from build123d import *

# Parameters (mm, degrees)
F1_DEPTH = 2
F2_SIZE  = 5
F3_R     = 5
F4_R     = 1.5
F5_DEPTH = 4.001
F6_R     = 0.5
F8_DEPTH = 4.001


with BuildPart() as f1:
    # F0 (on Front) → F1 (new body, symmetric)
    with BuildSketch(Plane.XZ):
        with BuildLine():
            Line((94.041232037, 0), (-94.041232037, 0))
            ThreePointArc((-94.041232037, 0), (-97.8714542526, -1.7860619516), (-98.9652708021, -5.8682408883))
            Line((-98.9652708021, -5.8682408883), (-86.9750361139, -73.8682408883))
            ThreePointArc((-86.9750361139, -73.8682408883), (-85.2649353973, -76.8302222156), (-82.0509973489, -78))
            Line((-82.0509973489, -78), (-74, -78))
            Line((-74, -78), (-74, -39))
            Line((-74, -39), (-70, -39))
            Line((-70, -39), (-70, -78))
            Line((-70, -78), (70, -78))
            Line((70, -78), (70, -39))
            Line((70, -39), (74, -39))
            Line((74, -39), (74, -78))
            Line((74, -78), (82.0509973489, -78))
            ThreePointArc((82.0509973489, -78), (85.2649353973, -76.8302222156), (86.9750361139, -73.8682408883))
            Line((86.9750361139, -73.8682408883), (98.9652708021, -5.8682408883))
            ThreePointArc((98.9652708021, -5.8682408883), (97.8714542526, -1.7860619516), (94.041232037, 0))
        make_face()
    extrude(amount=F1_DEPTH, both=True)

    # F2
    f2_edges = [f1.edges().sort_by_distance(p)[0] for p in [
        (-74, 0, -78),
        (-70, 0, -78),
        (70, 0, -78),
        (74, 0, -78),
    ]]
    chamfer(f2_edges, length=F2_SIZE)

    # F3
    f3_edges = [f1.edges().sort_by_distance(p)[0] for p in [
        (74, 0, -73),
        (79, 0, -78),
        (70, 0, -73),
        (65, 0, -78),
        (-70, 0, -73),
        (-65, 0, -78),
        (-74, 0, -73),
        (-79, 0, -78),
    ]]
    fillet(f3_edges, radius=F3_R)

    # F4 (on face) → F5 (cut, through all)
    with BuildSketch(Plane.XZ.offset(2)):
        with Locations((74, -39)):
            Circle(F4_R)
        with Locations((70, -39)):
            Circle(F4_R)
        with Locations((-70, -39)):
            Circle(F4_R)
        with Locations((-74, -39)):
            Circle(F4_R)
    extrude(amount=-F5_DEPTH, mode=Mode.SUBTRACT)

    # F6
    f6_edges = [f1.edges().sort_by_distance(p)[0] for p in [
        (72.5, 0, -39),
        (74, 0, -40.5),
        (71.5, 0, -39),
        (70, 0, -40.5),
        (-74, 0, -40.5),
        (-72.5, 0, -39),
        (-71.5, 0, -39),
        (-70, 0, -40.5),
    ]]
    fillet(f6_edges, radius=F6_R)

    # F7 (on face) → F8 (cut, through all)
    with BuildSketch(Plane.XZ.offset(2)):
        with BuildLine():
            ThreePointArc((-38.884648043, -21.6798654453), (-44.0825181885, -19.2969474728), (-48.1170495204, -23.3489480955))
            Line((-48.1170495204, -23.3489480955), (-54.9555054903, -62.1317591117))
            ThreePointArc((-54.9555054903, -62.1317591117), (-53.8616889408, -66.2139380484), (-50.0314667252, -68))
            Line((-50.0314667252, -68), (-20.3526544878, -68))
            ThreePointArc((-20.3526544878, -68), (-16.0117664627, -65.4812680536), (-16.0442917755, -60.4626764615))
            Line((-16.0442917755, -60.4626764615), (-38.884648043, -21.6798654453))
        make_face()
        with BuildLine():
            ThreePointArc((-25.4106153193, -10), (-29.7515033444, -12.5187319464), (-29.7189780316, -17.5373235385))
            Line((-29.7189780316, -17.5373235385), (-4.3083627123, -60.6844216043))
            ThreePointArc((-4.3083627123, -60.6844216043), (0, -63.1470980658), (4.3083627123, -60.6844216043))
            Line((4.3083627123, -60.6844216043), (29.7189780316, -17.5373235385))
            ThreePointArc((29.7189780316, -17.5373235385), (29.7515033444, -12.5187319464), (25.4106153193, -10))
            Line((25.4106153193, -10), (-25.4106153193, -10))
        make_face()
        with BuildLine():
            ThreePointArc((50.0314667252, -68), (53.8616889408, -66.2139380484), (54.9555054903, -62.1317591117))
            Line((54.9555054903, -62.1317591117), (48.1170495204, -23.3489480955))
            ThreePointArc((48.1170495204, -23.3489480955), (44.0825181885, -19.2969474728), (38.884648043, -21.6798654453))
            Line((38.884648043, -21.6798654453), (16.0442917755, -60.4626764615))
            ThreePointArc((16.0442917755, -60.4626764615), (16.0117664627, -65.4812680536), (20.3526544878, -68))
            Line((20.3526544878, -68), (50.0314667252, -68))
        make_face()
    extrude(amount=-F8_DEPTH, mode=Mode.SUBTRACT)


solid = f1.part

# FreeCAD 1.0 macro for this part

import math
import FreeCAD as App
import Part
import Sketcher
Q = App.Units.Quantity


def edges_at(feature, points):
    """Names of the edges that pass closest to the given points."""
    edges = feature.Shape.Edges
    near = lambda p: min(range(len(edges)), key=lambda i: edges[i].distToShape(Part.Vertex(*p))[0])
    return sorted({f"Edge{near(p) + 1}" for p in points})

doc = App.newDocument("Part")
body = doc.addObject("PartDesign::Body", "Body")

sketch1 = body.newObject("Sketcher::SketchObject", "Sketch")
sketch1.AttachmentSupport = (doc.getObject("XZ_Plane"), [""])
sketch1.MapMode = "FlatFace"
sketch1.addGeometry(Part.LineSegment(App.Vector(94, 0, 0), App.Vector(-94, 0, 0)), False)
sketch1.addGeometry(Part.ArcOfCircle(Part.Circle(App.Vector(-94, -5, 0), App.Vector(0, 0, 1), 5), math.radians(90), math.radians(190)), False)
sketch1.addGeometry(Part.LineSegment(App.Vector(-99, -5.9, 0), App.Vector(-87, -73.9, 0)), False)
sketch1.addGeometry(Part.ArcOfCircle(Part.Circle(App.Vector(-82.1, -73, 0), App.Vector(0, 0, 1), 5), math.radians(-170), math.radians(-90)), False)
sketch1.addGeometry(Part.LineSegment(App.Vector(-82.1, -78, 0), App.Vector(-74, -78, 0)), False)
sketch1.addGeometry(Part.LineSegment(App.Vector(-74, -78, 0), App.Vector(-74, -39, 0)), False)
sketch1.addGeometry(Part.LineSegment(App.Vector(-74, -39, 0), App.Vector(-70, -39, 0)), False)
sketch1.addGeometry(Part.LineSegment(App.Vector(-70, -39, 0), App.Vector(-70, -78, 0)), False)
sketch1.addGeometry(Part.LineSegment(App.Vector(-70, -78, 0), App.Vector(70, -78, 0)), False)
sketch1.addGeometry(Part.LineSegment(App.Vector(70, -78, 0), App.Vector(70, -39, 0)), False)
sketch1.addGeometry(Part.LineSegment(App.Vector(70, -39, 0), App.Vector(74, -39, 0)), False)
sketch1.addGeometry(Part.LineSegment(App.Vector(74, -39, 0), App.Vector(74, -78, 0)), False)
sketch1.addGeometry(Part.LineSegment(App.Vector(74, -78, 0), App.Vector(82.1, -78, 0)), False)
sketch1.addGeometry(Part.ArcOfCircle(Part.Circle(App.Vector(82.1, -73, 0), App.Vector(0, 0, 1), 5), math.radians(-90), math.radians(-10)), False)
sketch1.addGeometry(Part.LineSegment(App.Vector(87, -73.9, 0), App.Vector(99, -5.9, 0)), False)
sketch1.addGeometry(Part.ArcOfCircle(Part.Circle(App.Vector(94, -5, 0), App.Vector(0, 0, 1), 5), math.radians(-10), math.radians(90)), False)
sketch1.addConstraint(Sketcher.Constraint("Tangent", 0, 2, 1, 1))
sketch1.addConstraint(Sketcher.Constraint("Tangent", 1, 2, 2, 1))
sketch1.addConstraint(Sketcher.Constraint("Tangent", 2, 2, 3, 1))
sketch1.addConstraint(Sketcher.Constraint("Tangent", 3, 2, 4, 1))
sketch1.addConstraint(Sketcher.Constraint("Coincident", 4, 2, 5, 1))
sketch1.addConstraint(Sketcher.Constraint("Coincident", 5, 2, 6, 1))
sketch1.addConstraint(Sketcher.Constraint("Coincident", 6, 2, 7, 1))
sketch1.addConstraint(Sketcher.Constraint("Coincident", 7, 2, 8, 1))
sketch1.addConstraint(Sketcher.Constraint("Coincident", 8, 2, 9, 1))
sketch1.addConstraint(Sketcher.Constraint("Coincident", 9, 2, 10, 1))
sketch1.addConstraint(Sketcher.Constraint("Coincident", 10, 2, 11, 1))
sketch1.addConstraint(Sketcher.Constraint("Coincident", 11, 2, 12, 1))
sketch1.addConstraint(Sketcher.Constraint("Tangent", 12, 2, 13, 1))
sketch1.addConstraint(Sketcher.Constraint("Tangent", 13, 2, 14, 1))
sketch1.addConstraint(Sketcher.Constraint("Tangent", 14, 2, 15, 1))
sketch1.addConstraint(Sketcher.Constraint("Tangent", 15, 2, 0, 1))
sketch1.addConstraint(Sketcher.Constraint("Horizontal", 0))
sketch1.addConstraint(Sketcher.Constraint("Horizontal", 4))
sketch1.addConstraint(Sketcher.Constraint("Vertical", 5))
sketch1.addConstraint(Sketcher.Constraint("Horizontal", 6))
sketch1.addConstraint(Sketcher.Constraint("Vertical", 7))
sketch1.addConstraint(Sketcher.Constraint("Horizontal", 8))
sketch1.addConstraint(Sketcher.Constraint("Vertical", 9))
sketch1.addConstraint(Sketcher.Constraint("Horizontal", 10))
sketch1.addConstraint(Sketcher.Constraint("Vertical", 11))
sketch1.addConstraint(Sketcher.Constraint("Horizontal", 12))
sketch1.addConstraint(Sketcher.Constraint("Equal", 1, 3))
sketch1.addConstraint(Sketcher.Constraint("Equal", 3, 13))
sketch1.addConstraint(Sketcher.Constraint("Equal", 13, 15))
sketch1.addConstraint(Sketcher.Constraint("Symmetric", 0, 2, 15, 2, -1, 1))
sketch1.addConstraint(Sketcher.Constraint("Symmetric", 3, 3, 13, 3, -2))
sketch1.addConstraint(Sketcher.Constraint("Symmetric", 6, 2, 9, 2, -2))
sketch1.addConstraint(Sketcher.Constraint("Horizontal", 4, 2, 7, 2))
sketch1.addConstraint(Sketcher.Constraint("Equal", 6, 10))
sketch1.addConstraint(Sketcher.Constraint("Radius", 1, Q("5 mm")))
sketch1.addConstraint(Sketcher.Constraint("DistanceX", 6, 1, 6, 2, Q("4 mm")))
sketch1.addConstraint(Sketcher.Constraint("DistanceX", 8, 1, 8, 2, Q("140 mm")))
sketch1.addConstraint(Sketcher.Constraint("DistanceY", 5, 1, 5, 2, Q("39 mm")))
sketch1.addConstraint(Sketcher.Constraint("Angle", 2, Q("-80 deg")))
sketch1.addConstraint(Sketcher.Constraint("DistanceY", 3, 3, -1, 1, Q("73 mm")))
sketch1.addConstraint(Sketcher.Constraint("DistanceX", 0, 2, 0, 1, Q("188.082464 mm")))
pad1 = body.newObject("PartDesign::Pad", "Pad")
pad1.Profile = sketch1
pad1.Length = 4
pad1.Midplane = True
doc.recompute()

chamfer = body.newObject("PartDesign::Chamfer", "Chamfer")
chamfer.Base = (pad1, edges_at(pad1, [
    (-74, 0, -78),
    (-70, 0, -78),
    (70, 0, -78),
    (74, 0, -78),
]))
chamfer.Size = 5
doc.recompute()

fillet = body.newObject("PartDesign::Fillet", "Fillet")
fillet.Base = (chamfer, edges_at(chamfer, [
    (74, 0, -73),
    (79, 0, -78),
    (70, 0, -73),
    (65, 0, -78),
    (-70, 0, -73),
    (-65, 0, -78),
    (-74, 0, -73),
    (-79, 0, -78),
]))
fillet.Radius = 5

sketch2 = body.newObject("Sketcher::SketchObject", "Sketch001")
sketch2.AttachmentSupport = (doc.getObject("XZ_Plane"), [""])
sketch2.MapMode = "FlatFace"
sketch2.AttachmentOffset = App.Placement(App.Vector(0, 0, 2), App.Rotation())
sketch2.addGeometry(Part.Circle(App.Vector(74, -39, 0), App.Vector(0, 0, 1), 1.5), False)
sketch2.addGeometry(Part.Circle(App.Vector(70, -39, 0), App.Vector(0, 0, 1), 1.5), False)
sketch2.addGeometry(Part.Circle(App.Vector(-70, -39, 0), App.Vector(0, 0, 1), 1.5), False)
sketch2.addGeometry(Part.Circle(App.Vector(-74, -39, 0), App.Vector(0, 0, 1), 1.5), False)
sketch2.addConstraint(Sketcher.Constraint("Equal", 0, 1))
sketch2.addConstraint(Sketcher.Constraint("Equal", 1, 2))
sketch2.addConstraint(Sketcher.Constraint("Equal", 2, 3))
sketch2.addConstraint(Sketcher.Constraint("Symmetric", 1, 3, 2, 3, -2))
sketch2.addConstraint(Sketcher.Constraint("Symmetric", 0, 3, 3, 3, -2))
sketch2.addConstraint(Sketcher.Constraint("Horizontal", 0, 3, 1, 3))
sketch2.addConstraint(Sketcher.Constraint("Diameter", 0, Q("3 mm")))
sketch2.addConstraint(Sketcher.Constraint("DistanceX", -1, 1, 0, 3, Q("74 mm")))
sketch2.addConstraint(Sketcher.Constraint("DistanceY", 0, 3, -1, 1, Q("39 mm")))
sketch2.addConstraint(Sketcher.Constraint("DistanceX", -1, 1, 1, 3, Q("70 mm")))
pocket1 = body.newObject("PartDesign::Pocket", "Pocket")
pocket1.Profile = sketch2
pocket1.Type = "ThroughAll"
doc.recompute()

fillet2 = body.newObject("PartDesign::Fillet", "Fillet001")
fillet2.Base = (pocket1, edges_at(pocket1, [
    (72.5, 0, -39),
    (74, 0, -40.5),
    (71.5, 0, -39),
    (70, 0, -40.5),
    (-74, 0, -40.5),
    (-72.5, 0, -39),
    (-71.5, 0, -39),
    (-70, 0, -40.5),
]))
fillet2.Radius = 0.5

sketch3 = body.newObject("Sketcher::SketchObject", "Sketch002")
sketch3.AttachmentSupport = (doc.getObject("XZ_Plane"), [""])
sketch3.MapMode = "FlatFace"
sketch3.AttachmentOffset = App.Placement(App.Vector(0, 0, 2), App.Rotation())
sketch3.addGeometry(Part.ArcOfCircle(Part.Circle(App.Vector(-43, -24, 0), App.Vector(0, 0, 1), 5), math.radians(30), math.radians(170)), False)
sketch3.addGeometry(Part.LineSegment(App.Vector(-48, -23, 0), App.Vector(-55, -62, 0)), False)
sketch3.addGeometry(Part.ArcOfCircle(Part.Circle(App.Vector(-50, -63, 0), App.Vector(0, 0, 1), 5), math.radians(170), math.radians(270)), False)
sketch3.addGeometry(Part.LineSegment(App.Vector(-50, -68, 0), App.Vector(-20, -68, 0)), False)
sketch3.addGeometry(Part.ArcOfCircle(Part.Circle(App.Vector(-20, -63, 0), App.Vector(0, 0, 1), 5), math.radians(-90), math.radians(30)), False)
sketch3.addGeometry(Part.LineSegment(App.Vector(-16, -60, 0), App.Vector(-39, -22, 0)), False)
sketch3.addGeometry(Part.ArcOfCircle(Part.Circle(App.Vector(-25, -15, 0), App.Vector(0, 0, 1), 5), math.radians(90), math.radians(210)), False)
sketch3.addGeometry(Part.LineSegment(App.Vector(-30, -18, 0), App.Vector(-4, -61, 0)), False)
sketch3.addGeometry(Part.ArcOfCircle(Part.Circle(App.Vector(0, -58, 0), App.Vector(0, 0, 1), 5), math.radians(-150), math.radians(-30)), False)
sketch3.addGeometry(Part.LineSegment(App.Vector(4, -61, 0), App.Vector(30, -18, 0)), False)
sketch3.addGeometry(Part.ArcOfCircle(Part.Circle(App.Vector(25, -15, 0), App.Vector(0, 0, 1), 5), math.radians(-30), math.radians(90)), False)
sketch3.addGeometry(Part.LineSegment(App.Vector(25, -10, 0), App.Vector(-25, -10, 0)), False)
sketch3.addGeometry(Part.ArcOfCircle(Part.Circle(App.Vector(50, -63, 0), App.Vector(0, 0, 1), 5), math.radians(-90), math.radians(10)), False)
sketch3.addGeometry(Part.LineSegment(App.Vector(55, -62, 0), App.Vector(48, -23, 0)), False)
sketch3.addGeometry(Part.ArcOfCircle(Part.Circle(App.Vector(43, -24, 0), App.Vector(0, 0, 1), 5), math.radians(10), math.radians(150)), False)
sketch3.addGeometry(Part.LineSegment(App.Vector(39, -22, 0), App.Vector(16, -60, 0)), False)
sketch3.addGeometry(Part.ArcOfCircle(Part.Circle(App.Vector(20, -63, 0), App.Vector(0, 0, 1), 5), math.radians(150), math.radians(270)), False)
sketch3.addGeometry(Part.LineSegment(App.Vector(20, -68, 0), App.Vector(50, -68, 0)), False)
sketch3.addConstraint(Sketcher.Constraint("Tangent", 0, 2, 1, 1))
sketch3.addConstraint(Sketcher.Constraint("Tangent", 1, 2, 2, 1))
sketch3.addConstraint(Sketcher.Constraint("Tangent", 2, 2, 3, 1))
sketch3.addConstraint(Sketcher.Constraint("Tangent", 3, 2, 4, 1))
sketch3.addConstraint(Sketcher.Constraint("Tangent", 4, 2, 5, 1))
sketch3.addConstraint(Sketcher.Constraint("Tangent", 5, 2, 0, 1))
sketch3.addConstraint(Sketcher.Constraint("Tangent", 6, 2, 7, 1))
sketch3.addConstraint(Sketcher.Constraint("Tangent", 7, 2, 8, 1))
sketch3.addConstraint(Sketcher.Constraint("Tangent", 8, 2, 9, 1))
sketch3.addConstraint(Sketcher.Constraint("Tangent", 9, 2, 10, 1))
sketch3.addConstraint(Sketcher.Constraint("Tangent", 10, 2, 11, 1))
sketch3.addConstraint(Sketcher.Constraint("Tangent", 11, 2, 6, 1))
sketch3.addConstraint(Sketcher.Constraint("Tangent", 12, 2, 13, 1))
sketch3.addConstraint(Sketcher.Constraint("Tangent", 13, 2, 14, 1))
sketch3.addConstraint(Sketcher.Constraint("Tangent", 14, 2, 15, 1))
sketch3.addConstraint(Sketcher.Constraint("Tangent", 15, 2, 16, 1))
sketch3.addConstraint(Sketcher.Constraint("Tangent", 16, 2, 17, 1))
sketch3.addConstraint(Sketcher.Constraint("Tangent", 17, 2, 12, 1))
sketch3.addConstraint(Sketcher.Constraint("Horizontal", 3))
sketch3.addConstraint(Sketcher.Constraint("Horizontal", 11))
sketch3.addConstraint(Sketcher.Constraint("Horizontal", 17))
sketch3.addConstraint(Sketcher.Constraint("Equal", 0, 2))
sketch3.addConstraint(Sketcher.Constraint("Equal", 2, 4))
sketch3.addConstraint(Sketcher.Constraint("Equal", 4, 6))
sketch3.addConstraint(Sketcher.Constraint("Equal", 6, 8))
sketch3.addConstraint(Sketcher.Constraint("Equal", 8, 10))
sketch3.addConstraint(Sketcher.Constraint("Equal", 10, 12))
sketch3.addConstraint(Sketcher.Constraint("Equal", 12, 14))
sketch3.addConstraint(Sketcher.Constraint("Equal", 14, 16))
sketch3.addConstraint(Sketcher.Constraint("Symmetric", 2, 3, 12, 3, -2))
sketch3.addConstraint(Sketcher.Constraint("Symmetric", 0, 3, 14, 3, -2))
sketch3.addConstraint(Sketcher.Constraint("Symmetric", 7, 2, 8, 2, -2))
sketch3.addConstraint(Sketcher.Constraint("Parallel", 5, 7))
sketch3.addConstraint(Sketcher.Constraint("Parallel", 9, 15))
sketch3.addConstraint(Sketcher.Constraint("Radius", 0, Q("5 mm")))
sketch3.addConstraint(Sketcher.Constraint("Angle", 1, Q("-100 deg")))
sketch3.addConstraint(Sketcher.Constraint("DistanceY", 2, 3, -1, 1, Q("63 mm")))
sketch3.addConstraint(Sketcher.Constraint("DistanceY", 6, 3, -1, 1, Q("15 mm")))
sketch3.addConstraint(Sketcher.Constraint("Distance", 1, Q("39.381098 mm")))
sketch3.addConstraint(Sketcher.Constraint("DistanceX", 11, 2, 11, 1, Q("50.821231 mm")))
sketch3.addConstraint(Sketcher.Constraint("DistanceY", 8, 3, -1, 1, Q("58.147098 mm")))
sketch3.addConstraint(Sketcher.Constraint("DistanceX", 0, 3, -1, 1, Q("43.193011 mm")))
pocket2 = body.newObject("PartDesign::Pocket", "Pocket001")
pocket2.Profile = sketch3
pocket2.Type = "ThroughAll"

doc.recompute()
